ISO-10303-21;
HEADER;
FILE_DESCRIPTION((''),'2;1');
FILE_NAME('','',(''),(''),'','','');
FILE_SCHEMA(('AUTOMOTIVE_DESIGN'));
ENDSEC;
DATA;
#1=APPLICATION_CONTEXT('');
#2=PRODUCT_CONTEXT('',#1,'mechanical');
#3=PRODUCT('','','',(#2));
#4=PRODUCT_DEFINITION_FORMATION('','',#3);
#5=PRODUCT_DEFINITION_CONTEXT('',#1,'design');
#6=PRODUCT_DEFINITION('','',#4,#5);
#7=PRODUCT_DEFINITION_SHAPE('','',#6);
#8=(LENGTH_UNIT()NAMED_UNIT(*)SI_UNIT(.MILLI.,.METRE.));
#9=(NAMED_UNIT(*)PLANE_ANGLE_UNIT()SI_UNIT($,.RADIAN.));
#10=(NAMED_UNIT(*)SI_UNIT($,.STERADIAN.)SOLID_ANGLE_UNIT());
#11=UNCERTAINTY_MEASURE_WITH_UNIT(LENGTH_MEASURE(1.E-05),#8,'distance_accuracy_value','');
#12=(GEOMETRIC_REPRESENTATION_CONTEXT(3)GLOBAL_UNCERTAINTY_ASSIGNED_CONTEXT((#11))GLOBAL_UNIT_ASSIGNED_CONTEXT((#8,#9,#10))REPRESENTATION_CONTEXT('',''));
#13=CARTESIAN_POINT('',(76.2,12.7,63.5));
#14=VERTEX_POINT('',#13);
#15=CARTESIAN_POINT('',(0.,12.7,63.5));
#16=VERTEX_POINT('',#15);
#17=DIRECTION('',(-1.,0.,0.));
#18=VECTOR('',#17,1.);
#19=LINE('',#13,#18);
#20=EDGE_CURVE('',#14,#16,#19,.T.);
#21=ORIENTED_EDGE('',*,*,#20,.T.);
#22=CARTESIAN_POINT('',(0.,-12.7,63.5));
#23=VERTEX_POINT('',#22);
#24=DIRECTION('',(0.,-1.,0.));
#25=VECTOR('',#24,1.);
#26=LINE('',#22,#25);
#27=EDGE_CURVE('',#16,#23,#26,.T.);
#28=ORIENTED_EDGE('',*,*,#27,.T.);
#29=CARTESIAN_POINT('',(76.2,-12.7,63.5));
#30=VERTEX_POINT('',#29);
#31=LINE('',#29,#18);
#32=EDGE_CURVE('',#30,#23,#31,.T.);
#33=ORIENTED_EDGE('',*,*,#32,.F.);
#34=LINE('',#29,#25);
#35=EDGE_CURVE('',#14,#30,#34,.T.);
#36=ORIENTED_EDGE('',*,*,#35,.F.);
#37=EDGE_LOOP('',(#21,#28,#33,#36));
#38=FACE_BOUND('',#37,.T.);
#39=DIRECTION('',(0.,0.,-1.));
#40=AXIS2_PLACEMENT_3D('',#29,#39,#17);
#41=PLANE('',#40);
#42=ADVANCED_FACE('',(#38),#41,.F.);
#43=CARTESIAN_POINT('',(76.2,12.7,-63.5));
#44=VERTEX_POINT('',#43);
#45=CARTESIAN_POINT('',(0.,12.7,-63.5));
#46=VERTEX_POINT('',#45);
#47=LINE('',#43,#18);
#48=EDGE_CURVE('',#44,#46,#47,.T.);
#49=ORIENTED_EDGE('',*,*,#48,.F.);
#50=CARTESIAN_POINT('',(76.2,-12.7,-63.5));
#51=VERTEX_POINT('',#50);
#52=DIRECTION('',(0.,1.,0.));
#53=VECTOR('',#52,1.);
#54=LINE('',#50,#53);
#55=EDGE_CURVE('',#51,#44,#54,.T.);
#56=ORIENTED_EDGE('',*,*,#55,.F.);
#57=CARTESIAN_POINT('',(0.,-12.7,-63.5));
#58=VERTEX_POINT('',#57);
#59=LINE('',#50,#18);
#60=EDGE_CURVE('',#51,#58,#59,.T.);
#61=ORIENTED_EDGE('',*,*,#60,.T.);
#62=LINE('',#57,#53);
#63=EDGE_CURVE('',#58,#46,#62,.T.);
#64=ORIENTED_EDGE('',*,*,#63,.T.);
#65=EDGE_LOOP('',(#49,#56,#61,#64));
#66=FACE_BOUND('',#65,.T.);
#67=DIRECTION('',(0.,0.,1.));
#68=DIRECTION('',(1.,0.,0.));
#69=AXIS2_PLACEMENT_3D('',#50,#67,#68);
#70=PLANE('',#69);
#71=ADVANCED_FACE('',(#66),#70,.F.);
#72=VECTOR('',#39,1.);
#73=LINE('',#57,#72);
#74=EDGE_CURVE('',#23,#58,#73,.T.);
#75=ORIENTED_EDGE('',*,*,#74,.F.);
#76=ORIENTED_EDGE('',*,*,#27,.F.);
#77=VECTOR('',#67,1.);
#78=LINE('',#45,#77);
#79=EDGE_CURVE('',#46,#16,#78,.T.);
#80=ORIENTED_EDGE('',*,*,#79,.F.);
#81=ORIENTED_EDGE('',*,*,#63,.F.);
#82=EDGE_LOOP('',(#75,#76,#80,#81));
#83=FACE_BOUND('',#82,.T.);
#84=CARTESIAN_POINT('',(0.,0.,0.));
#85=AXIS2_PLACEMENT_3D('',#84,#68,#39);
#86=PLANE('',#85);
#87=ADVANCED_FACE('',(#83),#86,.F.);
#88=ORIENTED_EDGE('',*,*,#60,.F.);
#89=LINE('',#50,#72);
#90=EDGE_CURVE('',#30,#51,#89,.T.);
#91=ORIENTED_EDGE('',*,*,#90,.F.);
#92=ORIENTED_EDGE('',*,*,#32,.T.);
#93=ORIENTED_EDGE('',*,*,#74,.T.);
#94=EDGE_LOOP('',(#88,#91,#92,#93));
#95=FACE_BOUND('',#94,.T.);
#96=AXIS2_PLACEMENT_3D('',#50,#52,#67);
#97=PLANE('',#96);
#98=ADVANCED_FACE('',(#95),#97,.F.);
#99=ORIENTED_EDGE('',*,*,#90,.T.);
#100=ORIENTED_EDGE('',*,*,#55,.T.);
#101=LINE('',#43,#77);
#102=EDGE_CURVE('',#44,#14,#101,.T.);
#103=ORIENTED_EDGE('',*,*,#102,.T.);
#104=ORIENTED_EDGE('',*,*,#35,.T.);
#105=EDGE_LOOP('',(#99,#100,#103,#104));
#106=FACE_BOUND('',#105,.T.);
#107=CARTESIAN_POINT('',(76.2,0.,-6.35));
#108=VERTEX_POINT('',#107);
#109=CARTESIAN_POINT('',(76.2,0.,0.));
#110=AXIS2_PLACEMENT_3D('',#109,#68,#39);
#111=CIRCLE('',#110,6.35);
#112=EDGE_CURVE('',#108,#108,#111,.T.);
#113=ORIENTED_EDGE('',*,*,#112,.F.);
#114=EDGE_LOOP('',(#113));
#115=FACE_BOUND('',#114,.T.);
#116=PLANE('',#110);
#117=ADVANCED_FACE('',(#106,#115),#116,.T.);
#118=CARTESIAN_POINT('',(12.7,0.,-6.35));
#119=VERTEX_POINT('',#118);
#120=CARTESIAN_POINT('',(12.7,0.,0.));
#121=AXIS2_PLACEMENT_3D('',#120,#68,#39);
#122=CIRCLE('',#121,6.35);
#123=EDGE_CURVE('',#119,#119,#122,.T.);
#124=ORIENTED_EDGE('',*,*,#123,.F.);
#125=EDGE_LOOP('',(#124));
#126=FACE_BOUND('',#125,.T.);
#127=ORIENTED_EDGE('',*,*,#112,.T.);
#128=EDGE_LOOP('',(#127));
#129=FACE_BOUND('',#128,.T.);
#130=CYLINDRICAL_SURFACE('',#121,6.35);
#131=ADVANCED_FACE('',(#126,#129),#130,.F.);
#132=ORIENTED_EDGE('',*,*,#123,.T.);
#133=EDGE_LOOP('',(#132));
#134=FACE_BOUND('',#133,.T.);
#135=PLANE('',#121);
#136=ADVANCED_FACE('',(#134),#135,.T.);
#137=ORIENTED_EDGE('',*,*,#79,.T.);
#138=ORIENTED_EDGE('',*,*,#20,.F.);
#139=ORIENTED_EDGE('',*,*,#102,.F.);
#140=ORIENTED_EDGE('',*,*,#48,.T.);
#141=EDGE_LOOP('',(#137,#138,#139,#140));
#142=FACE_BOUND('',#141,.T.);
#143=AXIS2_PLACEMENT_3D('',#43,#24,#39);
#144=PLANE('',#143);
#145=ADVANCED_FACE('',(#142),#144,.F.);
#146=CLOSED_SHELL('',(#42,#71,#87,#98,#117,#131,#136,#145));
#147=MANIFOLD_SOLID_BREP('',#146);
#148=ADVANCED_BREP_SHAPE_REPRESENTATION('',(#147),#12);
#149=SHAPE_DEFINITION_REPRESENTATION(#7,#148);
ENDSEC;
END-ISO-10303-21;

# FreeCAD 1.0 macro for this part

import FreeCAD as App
import Part
import Sketcher
from FreeCAD import Vector
Q = App.Units.Quantity

doc = App.newDocument("Part")
body = doc.addObject("PartDesign::Body", "Body")

# Sketch on YZ plane
sketch1 = doc.addObject("Sketcher::SketchObject", "Sketch")
body.addObject(sketch1)
sketch1.AttachmentSupport = (doc.YZ_Plane, [""])
sketch1.MapMode = "FlatFace"
sketch1.addGeometry([
    Part.LineSegment(Vector(12.7, 63.5, 0), Vector(-12.7, 63.5, 0)),
    Part.LineSegment(Vector(-12.7, 63.5, 0), Vector(-12.7, -63.5, 0)),
    Part.LineSegment(Vector(-12.7, -63.5, 0), Vector(12.7, -63.5, 0)),
    Part.LineSegment(Vector(12.7, -63.5, 0), Vector(12.7, 63.5, 0)),
], False)
sketch1.addConstraint([
    Sketcher.Constraint("Coincident", 0, 2, 1, 1),
    Sketcher.Constraint("Coincident", 1, 2, 2, 1),
    Sketcher.Constraint("Coincident", 2, 2, 3, 1),
    Sketcher.Constraint("Coincident", 3, 2, 0, 1),
    Sketcher.Constraint("Horizontal", 0),
    Sketcher.Constraint("Vertical", 1),
    Sketcher.Constraint("Horizontal", 2),
    Sketcher.Constraint("Vertical", 3),
    Sketcher.Constraint("Symmetric", 0, 2, 2, 2, -1, 1),
    Sketcher.Constraint("DistanceX", 0, 2, 0, 1, Q("1 in")),
    Sketcher.Constraint("DistanceY", 1, 2, 1, 1, Q("5 in")),
])
pad1 = doc.addObject("PartDesign::Pad", "Pad")
body.addObject(pad1)
pad1.Profile = sketch1
pad1.Length = Q("3 in")

# Sketch on YZ plane
sketch2 = doc.addObject("Sketcher::SketchObject", "Sketch001")
body.addObject(sketch2)
sketch2.AttachmentSupport = (doc.YZ_Plane, [""])
sketch2.MapMode = "FlatFace"
sketch2.AttachmentOffset = App.Placement(Vector(0, 0, 3 * 25.4), App.Rotation())
sketch2.addGeometry(Part.Circle(Vector(0, 0, 0), Vector(0, 0, 1), 6.35), False)
sketch2.addConstraint([
    Sketcher.Constraint("Coincident", 0, 3, -1, 1),
    Sketcher.Constraint("Diameter", 0, Q("0.5 in")),
])
pocket1 = doc.addObject("PartDesign::Pocket", "Pocket")
body.addObject(pocket1)
pocket1.Profile = sketch2
pocket1.Length = Q("2.5 in")

doc.recompute()
